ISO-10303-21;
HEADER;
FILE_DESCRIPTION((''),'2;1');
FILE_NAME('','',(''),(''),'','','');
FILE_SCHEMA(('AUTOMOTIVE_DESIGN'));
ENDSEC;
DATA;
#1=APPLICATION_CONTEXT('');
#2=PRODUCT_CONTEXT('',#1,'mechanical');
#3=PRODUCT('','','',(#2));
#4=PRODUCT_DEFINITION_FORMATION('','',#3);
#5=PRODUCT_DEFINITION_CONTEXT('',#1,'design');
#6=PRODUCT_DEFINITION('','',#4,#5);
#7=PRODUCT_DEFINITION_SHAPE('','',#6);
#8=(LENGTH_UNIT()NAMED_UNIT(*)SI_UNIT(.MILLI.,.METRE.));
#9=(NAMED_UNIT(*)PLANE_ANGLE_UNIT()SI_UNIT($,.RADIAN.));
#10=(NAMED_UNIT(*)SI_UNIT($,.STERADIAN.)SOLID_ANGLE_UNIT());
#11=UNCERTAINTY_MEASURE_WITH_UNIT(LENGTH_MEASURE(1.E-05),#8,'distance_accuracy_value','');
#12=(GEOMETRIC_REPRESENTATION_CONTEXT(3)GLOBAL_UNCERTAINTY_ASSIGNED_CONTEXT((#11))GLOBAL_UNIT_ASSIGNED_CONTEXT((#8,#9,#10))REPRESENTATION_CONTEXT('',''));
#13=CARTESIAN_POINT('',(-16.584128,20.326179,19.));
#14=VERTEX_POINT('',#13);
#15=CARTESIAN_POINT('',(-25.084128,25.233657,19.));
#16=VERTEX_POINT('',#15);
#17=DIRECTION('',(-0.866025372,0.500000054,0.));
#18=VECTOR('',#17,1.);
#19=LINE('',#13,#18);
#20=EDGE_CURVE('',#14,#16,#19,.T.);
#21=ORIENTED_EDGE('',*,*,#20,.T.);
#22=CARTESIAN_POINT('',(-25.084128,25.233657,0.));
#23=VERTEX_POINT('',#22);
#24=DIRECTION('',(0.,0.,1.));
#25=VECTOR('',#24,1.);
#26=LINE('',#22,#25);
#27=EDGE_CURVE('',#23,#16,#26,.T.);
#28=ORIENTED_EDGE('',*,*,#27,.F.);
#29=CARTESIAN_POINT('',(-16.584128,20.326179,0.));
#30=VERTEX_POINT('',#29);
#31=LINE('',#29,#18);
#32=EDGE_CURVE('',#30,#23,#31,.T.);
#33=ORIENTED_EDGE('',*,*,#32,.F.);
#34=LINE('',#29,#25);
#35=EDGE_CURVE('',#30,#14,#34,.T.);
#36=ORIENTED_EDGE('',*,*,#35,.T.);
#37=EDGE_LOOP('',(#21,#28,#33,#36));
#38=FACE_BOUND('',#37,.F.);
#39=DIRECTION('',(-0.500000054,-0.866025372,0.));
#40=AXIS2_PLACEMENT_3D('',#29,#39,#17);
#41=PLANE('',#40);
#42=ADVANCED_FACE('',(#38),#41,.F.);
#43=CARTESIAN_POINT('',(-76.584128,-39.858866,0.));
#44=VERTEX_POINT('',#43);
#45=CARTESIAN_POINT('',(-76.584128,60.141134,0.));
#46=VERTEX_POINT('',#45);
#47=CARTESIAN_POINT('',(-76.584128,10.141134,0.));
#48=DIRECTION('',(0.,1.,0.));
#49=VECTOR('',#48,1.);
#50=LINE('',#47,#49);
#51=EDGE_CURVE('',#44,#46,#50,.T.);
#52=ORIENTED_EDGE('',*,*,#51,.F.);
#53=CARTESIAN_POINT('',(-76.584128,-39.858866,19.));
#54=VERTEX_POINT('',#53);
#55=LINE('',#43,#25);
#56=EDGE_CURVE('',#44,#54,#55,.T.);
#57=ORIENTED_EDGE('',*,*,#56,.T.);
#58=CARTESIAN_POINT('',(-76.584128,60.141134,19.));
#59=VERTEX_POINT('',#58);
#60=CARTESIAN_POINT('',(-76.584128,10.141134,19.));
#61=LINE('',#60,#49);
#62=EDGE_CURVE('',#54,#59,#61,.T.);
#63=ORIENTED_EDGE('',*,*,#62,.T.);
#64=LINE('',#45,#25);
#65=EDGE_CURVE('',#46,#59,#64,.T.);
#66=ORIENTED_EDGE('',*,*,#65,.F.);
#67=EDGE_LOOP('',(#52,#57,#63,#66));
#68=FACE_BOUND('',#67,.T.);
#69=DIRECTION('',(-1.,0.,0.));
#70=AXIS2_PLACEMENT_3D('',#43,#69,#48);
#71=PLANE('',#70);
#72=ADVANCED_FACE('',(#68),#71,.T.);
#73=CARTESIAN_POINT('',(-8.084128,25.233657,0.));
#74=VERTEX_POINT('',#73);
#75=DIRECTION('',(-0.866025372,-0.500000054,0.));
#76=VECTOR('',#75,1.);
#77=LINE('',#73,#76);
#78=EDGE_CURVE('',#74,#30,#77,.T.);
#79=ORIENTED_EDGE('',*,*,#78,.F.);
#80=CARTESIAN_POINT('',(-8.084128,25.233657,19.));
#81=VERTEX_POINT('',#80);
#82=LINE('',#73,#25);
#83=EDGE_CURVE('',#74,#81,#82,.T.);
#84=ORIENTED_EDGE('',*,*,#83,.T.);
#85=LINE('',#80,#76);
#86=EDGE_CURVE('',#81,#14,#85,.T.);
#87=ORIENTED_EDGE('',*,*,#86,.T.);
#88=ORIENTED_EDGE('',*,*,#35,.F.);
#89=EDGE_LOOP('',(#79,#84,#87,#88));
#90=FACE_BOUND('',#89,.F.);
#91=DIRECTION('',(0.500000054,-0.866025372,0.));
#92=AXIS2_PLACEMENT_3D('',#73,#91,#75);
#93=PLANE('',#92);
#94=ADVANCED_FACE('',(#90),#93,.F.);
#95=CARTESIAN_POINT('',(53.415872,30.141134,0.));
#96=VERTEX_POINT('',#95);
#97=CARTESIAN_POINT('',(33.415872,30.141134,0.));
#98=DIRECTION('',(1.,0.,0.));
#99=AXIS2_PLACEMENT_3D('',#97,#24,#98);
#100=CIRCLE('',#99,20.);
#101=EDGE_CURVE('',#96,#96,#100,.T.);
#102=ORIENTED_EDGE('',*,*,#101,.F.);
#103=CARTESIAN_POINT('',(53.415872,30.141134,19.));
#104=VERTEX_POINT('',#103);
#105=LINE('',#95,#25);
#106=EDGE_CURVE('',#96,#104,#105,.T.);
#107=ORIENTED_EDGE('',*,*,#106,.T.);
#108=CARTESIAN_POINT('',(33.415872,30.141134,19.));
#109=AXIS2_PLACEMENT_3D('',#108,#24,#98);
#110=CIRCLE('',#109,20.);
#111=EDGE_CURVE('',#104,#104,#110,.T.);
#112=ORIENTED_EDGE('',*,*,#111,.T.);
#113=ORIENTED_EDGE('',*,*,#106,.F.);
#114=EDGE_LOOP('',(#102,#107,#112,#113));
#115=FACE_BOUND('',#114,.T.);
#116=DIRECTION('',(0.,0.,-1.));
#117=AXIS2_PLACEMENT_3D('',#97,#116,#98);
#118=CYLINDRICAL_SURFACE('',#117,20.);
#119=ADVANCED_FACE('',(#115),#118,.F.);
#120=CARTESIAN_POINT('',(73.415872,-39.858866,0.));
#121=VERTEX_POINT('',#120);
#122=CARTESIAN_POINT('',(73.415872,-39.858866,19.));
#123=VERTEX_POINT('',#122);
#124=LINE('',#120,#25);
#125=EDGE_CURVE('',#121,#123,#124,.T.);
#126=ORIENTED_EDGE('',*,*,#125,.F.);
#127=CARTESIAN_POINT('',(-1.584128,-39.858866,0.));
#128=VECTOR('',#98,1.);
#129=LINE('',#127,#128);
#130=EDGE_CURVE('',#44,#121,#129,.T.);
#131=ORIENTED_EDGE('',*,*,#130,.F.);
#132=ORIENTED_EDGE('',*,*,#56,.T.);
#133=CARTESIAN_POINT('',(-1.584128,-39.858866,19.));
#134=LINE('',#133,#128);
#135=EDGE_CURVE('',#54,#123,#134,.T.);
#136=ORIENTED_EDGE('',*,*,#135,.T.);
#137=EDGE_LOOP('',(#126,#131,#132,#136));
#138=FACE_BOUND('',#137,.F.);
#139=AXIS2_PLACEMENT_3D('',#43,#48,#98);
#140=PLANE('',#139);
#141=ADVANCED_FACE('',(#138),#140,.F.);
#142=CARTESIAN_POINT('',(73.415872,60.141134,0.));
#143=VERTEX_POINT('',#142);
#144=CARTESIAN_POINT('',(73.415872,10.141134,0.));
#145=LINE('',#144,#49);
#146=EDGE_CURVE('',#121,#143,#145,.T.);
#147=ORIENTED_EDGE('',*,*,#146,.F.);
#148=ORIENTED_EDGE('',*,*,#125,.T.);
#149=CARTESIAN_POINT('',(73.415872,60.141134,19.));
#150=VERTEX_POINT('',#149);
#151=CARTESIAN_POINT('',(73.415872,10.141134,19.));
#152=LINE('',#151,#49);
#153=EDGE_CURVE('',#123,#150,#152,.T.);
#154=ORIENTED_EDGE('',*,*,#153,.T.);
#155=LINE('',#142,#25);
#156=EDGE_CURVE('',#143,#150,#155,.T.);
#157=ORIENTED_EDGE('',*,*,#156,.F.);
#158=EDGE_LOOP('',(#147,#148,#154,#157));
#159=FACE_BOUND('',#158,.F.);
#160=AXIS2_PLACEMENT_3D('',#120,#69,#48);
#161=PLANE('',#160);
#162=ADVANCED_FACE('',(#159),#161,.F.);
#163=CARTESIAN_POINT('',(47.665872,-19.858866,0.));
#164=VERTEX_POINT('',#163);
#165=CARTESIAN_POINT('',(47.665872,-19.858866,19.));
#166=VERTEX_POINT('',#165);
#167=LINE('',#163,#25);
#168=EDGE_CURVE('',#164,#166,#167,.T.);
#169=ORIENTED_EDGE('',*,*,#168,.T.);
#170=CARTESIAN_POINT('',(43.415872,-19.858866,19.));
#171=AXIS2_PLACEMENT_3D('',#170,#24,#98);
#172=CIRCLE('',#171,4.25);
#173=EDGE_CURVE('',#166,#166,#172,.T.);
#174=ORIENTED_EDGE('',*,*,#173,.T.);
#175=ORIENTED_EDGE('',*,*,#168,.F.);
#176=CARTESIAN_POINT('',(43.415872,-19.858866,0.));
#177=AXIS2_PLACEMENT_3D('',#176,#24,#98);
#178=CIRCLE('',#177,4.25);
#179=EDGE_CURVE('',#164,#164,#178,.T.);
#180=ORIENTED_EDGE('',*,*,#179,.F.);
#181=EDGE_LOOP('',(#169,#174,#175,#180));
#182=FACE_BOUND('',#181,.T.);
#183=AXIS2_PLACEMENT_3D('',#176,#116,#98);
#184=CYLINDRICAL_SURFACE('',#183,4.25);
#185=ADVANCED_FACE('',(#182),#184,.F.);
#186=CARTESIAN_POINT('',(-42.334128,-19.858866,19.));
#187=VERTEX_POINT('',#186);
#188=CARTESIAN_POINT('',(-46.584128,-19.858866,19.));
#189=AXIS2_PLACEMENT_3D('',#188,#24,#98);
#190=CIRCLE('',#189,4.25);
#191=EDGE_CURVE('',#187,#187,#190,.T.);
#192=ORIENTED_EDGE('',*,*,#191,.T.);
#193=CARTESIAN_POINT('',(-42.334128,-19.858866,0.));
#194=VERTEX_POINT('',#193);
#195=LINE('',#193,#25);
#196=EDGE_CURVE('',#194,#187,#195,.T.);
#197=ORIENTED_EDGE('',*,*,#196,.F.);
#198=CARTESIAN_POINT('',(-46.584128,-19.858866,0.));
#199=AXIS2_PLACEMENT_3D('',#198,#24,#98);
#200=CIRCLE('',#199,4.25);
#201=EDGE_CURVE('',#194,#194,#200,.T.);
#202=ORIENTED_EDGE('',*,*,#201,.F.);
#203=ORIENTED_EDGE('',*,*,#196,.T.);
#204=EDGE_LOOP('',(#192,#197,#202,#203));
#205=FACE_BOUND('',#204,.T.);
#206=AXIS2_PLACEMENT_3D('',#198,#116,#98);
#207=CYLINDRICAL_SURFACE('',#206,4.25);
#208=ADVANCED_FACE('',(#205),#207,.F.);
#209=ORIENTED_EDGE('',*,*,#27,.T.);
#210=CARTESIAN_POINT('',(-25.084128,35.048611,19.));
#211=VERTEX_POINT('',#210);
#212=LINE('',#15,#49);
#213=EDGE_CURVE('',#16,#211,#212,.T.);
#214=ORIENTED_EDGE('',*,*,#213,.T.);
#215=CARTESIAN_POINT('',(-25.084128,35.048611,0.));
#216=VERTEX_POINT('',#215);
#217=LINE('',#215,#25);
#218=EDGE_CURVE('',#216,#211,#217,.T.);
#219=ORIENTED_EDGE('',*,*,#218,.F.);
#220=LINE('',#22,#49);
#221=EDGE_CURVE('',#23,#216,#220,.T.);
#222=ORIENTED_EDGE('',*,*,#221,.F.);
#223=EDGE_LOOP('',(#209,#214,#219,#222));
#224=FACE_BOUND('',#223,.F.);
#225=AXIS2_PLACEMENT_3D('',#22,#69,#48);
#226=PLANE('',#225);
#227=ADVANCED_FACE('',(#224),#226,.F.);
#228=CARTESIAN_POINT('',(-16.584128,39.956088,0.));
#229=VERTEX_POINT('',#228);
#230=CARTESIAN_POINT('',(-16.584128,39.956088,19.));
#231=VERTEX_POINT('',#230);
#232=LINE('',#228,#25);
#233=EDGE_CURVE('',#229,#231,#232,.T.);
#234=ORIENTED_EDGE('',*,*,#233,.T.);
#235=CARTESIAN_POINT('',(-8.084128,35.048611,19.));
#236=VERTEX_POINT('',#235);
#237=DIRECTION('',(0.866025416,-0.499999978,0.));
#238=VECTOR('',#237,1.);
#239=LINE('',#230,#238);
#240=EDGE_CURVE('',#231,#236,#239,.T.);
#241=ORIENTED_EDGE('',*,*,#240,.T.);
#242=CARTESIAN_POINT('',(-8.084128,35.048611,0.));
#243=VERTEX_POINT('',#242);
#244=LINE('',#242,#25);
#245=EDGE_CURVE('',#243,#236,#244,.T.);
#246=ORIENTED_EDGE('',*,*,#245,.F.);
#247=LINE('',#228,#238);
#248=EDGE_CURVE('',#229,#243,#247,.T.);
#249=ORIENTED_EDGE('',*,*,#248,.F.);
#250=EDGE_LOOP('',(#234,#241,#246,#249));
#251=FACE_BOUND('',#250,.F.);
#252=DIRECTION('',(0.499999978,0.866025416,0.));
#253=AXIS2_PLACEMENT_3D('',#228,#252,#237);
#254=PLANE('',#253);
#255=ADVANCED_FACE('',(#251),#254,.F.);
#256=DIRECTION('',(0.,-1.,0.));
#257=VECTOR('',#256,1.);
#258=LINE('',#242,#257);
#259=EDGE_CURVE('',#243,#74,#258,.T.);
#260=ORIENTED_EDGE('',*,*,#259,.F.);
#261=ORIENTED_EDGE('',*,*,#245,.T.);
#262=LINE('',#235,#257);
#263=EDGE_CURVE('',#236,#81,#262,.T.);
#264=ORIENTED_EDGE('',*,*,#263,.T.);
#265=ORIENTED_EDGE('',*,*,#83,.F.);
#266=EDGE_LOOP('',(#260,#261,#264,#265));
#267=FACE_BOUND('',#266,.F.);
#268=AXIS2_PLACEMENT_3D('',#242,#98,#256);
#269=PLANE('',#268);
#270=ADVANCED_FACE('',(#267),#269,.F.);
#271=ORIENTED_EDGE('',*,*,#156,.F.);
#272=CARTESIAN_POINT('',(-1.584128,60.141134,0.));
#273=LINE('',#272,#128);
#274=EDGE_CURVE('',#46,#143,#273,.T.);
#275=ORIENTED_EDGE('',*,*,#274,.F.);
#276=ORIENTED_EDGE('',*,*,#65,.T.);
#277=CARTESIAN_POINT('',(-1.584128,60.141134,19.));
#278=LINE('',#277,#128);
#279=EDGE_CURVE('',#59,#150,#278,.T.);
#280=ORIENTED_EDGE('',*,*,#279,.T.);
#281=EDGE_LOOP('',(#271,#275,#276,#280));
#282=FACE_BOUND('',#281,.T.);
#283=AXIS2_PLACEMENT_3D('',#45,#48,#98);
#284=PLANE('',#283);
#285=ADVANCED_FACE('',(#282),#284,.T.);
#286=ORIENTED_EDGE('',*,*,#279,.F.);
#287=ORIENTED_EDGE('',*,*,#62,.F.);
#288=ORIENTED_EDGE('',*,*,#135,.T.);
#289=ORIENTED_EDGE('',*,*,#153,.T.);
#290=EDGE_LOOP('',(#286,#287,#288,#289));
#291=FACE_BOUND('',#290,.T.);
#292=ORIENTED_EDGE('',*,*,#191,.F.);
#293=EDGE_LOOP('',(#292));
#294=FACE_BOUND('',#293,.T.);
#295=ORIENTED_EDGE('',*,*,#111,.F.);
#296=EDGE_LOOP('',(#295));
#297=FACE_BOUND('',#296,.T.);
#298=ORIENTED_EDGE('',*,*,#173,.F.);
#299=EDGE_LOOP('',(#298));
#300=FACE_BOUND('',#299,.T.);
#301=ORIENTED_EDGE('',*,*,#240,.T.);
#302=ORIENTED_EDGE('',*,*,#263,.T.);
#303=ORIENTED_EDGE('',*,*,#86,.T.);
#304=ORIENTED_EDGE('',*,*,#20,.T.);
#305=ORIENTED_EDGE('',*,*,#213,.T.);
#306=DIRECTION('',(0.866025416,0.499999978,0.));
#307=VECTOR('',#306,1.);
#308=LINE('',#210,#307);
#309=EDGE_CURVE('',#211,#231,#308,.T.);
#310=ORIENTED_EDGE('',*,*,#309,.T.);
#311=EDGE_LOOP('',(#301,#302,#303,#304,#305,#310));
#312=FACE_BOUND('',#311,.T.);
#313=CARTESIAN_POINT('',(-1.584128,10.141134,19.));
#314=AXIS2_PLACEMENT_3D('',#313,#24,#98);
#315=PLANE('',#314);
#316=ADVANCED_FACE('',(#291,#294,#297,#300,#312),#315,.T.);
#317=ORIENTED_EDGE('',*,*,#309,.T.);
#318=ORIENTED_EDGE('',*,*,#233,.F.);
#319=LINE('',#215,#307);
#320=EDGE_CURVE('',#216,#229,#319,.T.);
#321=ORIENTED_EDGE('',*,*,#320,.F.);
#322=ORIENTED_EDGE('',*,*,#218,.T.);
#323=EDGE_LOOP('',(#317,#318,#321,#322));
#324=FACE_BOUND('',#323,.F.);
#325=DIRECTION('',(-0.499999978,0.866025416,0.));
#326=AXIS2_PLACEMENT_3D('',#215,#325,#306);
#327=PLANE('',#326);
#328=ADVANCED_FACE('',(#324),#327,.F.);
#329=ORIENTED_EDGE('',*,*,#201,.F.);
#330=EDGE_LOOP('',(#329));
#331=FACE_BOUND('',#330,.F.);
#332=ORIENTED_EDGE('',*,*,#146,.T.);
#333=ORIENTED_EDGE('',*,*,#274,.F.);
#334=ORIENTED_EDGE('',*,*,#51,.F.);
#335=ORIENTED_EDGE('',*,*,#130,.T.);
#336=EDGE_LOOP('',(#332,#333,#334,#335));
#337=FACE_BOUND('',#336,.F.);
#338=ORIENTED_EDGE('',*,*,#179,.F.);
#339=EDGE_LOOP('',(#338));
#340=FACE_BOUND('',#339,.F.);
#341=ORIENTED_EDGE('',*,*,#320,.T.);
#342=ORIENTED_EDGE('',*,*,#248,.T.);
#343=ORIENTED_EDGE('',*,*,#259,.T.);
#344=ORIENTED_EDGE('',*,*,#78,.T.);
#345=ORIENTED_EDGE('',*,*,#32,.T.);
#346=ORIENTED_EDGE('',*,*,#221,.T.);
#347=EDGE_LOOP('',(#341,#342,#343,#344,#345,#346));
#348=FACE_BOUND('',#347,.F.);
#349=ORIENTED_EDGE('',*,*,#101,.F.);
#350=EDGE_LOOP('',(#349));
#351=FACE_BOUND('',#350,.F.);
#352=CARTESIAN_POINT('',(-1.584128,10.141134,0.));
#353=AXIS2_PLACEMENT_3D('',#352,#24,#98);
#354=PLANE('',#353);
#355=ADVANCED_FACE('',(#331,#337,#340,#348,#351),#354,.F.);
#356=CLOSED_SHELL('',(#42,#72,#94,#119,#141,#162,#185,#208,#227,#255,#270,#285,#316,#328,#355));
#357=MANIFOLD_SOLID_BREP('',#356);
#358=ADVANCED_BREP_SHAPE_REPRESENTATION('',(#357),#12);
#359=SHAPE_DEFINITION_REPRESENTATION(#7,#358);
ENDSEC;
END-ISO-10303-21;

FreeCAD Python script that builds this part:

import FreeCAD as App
import Part
import Sketcher
from FreeCAD import Vector
Q = App.Units.Quantity

doc = App.newDocument("Part")
body = doc.addObject("PartDesign::Body", "Body")

sketch1 = body.newObject("Sketcher::SketchObject", "Sketch")
sketch1.AttachmentSupport = (doc.getObject("XY_Plane"), [""])
sketch1.MapMode = "FlatFace"
sketch1.addGeometry(Part.LineSegment(Vector(-76.6, 60.1, 0), Vector(-76.6, -39.9, 0)), False)
sketch1.addGeometry(Part.LineSegment(Vector(-76.6, -39.9, 0), Vector(73.4, -39.9, 0)), False)
sketch1.addGeometry(Part.LineSegment(Vector(73.4, -39.9, 0), Vector(73.4, 60.1, 0)), False)
sketch1.addGeometry(Part.LineSegment(Vector(73.4, 60.1, 0), Vector(-76.6, 60.1, 0)), False)
sketch1.addGeometry(Part.Circle(Vector(-46.6, -19.9, 0), Vector(0, 0, 1), 4.2), False)
sketch1.addGeometry(Part.Circle(Vector(43.4, -19.9, 0), Vector(0, 0, 1), 4.2), False)
sketch1.addGeometry(Part.LineSegment(Vector(-25.1, 35, 0), Vector(-16.6, 40, 0)), False)
sketch1.addGeometry(Part.LineSegment(Vector(-16.6, 40, 0), Vector(-8.1, 35, 0)), False)
sketch1.addGeometry(Part.LineSegment(Vector(-8.1, 35, 0), Vector(-8.1, 25.2, 0)), False)
sketch1.addGeometry(Part.LineSegment(Vector(-8.1, 25.2, 0), Vector(-16.6, 20.3, 0)), False)
sketch1.addGeometry(Part.LineSegment(Vector(-16.6, 20.3, 0), Vector(-25.1, 25.2, 0)), False)
sketch1.addGeometry(Part.LineSegment(Vector(-25.1, 25.2, 0), Vector(-25.1, 35, 0)), False)
sketch1.addGeometry(Part.Circle(Vector(33.4, 30.1, 0), Vector(0, 0, 1), 20), False)
sketch1.addConstraint(Sketcher.Constraint("Coincident", 0, 2, 1, 1))
sketch1.addConstraint(Sketcher.Constraint("Coincident", 1, 2, 2, 1))
sketch1.addConstraint(Sketcher.Constraint("Coincident", 2, 2, 3, 1))
sketch1.addConstraint(Sketcher.Constraint("Coincident", 3, 2, 0, 1))
sketch1.addConstraint(Sketcher.Constraint("Coincident", 6, 2, 7, 1))
sketch1.addConstraint(Sketcher.Constraint("Coincident", 7, 2, 8, 1))
sketch1.addConstraint(Sketcher.Constraint("Coincident", 8, 2, 9, 1))
sketch1.addConstraint(Sketcher.Constraint("Coincident", 9, 2, 10, 1))
sketch1.addConstraint(Sketcher.Constraint("Coincident", 10, 2, 11, 1))
sketch1.addConstraint(Sketcher.Constraint("Coincident", 11, 2, 6, 1))
sketch1.addConstraint(Sketcher.Constraint("Vertical", 0))
sketch1.addConstraint(Sketcher.Constraint("Horizontal", 1))
sketch1.addConstraint(Sketcher.Constraint("Vertical", 2))
sketch1.addConstraint(Sketcher.Constraint("Horizontal", 3))
sketch1.addConstraint(Sketcher.Constraint("Vertical", 8))
sketch1.addConstraint(Sketcher.Constraint("Vertical", 11))
sketch1.addConstraint(Sketcher.Constraint("Equal", 4, 5))
sketch1.addConstraint(Sketcher.Constraint("Parallel", 6, 9))
sketch1.addConstraint(Sketcher.Constraint("Parallel", 7, 10))
sketch1.addConstraint(Sketcher.Constraint("Horizontal", 4, 3, 5, 3))
sketch1.addConstraint(Sketcher.Constraint("Horizontal", 8, 2, 10, 2))
sketch1.addConstraint(Sketcher.Constraint("Horizontal", 7, 2, 11, 2))
sketch1.addConstraint(Sketcher.Constraint("Vertical", 6, 2, 9, 2))
sketch1.addConstraint(Sketcher.Constraint("Diameter", 12, 40.0))
sketch1.addConstraint(Sketcher.Constraint("Diameter", 4, 8.5))
sketch1.addConstraint(Sketcher.Constraint("DistanceX", 1, 1, 1, 2, 150.0))
sketch1.addConstraint(Sketcher.Constraint("DistanceY", 0, 2, 0, 1, 100.0))
sketch1.addConstraint(Sketcher.Constraint("Angle", 6, Q("29.999999 deg")))
sketch1.addConstraint(Sketcher.Constraint("DistanceX", 4, 3, 5, 3, 90.0))
sketch1.addConstraint(Sketcher.Constraint("DistanceX", 12, 3, 5, 3, 10.0))
sketch1.addConstraint(Sketcher.Constraint("DistanceY", 5, 3, 12, 3, 50.0))
sketch1.addConstraint(Sketcher.Constraint("DistanceX", 0, 2, 4, 3, 30.0))
sketch1.addConstraint(Sketcher.Constraint("DistanceY", 0, 2, 4, 3, 20.0))
sketch1.addConstraint(Sketcher.Constraint("DistanceX", 6, 2, 12, 3, 50.0))
sketch1.addConstraint(Sketcher.Constraint("DistanceX", 10, 2, 8, 2, 17.0))
sketch1.addConstraint(Sketcher.Constraint("DistanceY", 8, 2, 8, 1, 9.814954))
sketch1.addConstraint(Sketcher.Constraint("DistanceX", 0, 2, -1, 1, 76.584128))
sketch1.addConstraint(Sketcher.Constraint("DistanceY", -1, 1, 7, 2, 35.048611))
sketch1.addConstraint(Sketcher.Constraint("DistanceY", 4, 3, -1, 1, 19.858866))
pad1 = body.newObject("PartDesign::Pad", "Pad")
pad1.Profile = sketch1
pad1.Length = 19

doc.recompute()
